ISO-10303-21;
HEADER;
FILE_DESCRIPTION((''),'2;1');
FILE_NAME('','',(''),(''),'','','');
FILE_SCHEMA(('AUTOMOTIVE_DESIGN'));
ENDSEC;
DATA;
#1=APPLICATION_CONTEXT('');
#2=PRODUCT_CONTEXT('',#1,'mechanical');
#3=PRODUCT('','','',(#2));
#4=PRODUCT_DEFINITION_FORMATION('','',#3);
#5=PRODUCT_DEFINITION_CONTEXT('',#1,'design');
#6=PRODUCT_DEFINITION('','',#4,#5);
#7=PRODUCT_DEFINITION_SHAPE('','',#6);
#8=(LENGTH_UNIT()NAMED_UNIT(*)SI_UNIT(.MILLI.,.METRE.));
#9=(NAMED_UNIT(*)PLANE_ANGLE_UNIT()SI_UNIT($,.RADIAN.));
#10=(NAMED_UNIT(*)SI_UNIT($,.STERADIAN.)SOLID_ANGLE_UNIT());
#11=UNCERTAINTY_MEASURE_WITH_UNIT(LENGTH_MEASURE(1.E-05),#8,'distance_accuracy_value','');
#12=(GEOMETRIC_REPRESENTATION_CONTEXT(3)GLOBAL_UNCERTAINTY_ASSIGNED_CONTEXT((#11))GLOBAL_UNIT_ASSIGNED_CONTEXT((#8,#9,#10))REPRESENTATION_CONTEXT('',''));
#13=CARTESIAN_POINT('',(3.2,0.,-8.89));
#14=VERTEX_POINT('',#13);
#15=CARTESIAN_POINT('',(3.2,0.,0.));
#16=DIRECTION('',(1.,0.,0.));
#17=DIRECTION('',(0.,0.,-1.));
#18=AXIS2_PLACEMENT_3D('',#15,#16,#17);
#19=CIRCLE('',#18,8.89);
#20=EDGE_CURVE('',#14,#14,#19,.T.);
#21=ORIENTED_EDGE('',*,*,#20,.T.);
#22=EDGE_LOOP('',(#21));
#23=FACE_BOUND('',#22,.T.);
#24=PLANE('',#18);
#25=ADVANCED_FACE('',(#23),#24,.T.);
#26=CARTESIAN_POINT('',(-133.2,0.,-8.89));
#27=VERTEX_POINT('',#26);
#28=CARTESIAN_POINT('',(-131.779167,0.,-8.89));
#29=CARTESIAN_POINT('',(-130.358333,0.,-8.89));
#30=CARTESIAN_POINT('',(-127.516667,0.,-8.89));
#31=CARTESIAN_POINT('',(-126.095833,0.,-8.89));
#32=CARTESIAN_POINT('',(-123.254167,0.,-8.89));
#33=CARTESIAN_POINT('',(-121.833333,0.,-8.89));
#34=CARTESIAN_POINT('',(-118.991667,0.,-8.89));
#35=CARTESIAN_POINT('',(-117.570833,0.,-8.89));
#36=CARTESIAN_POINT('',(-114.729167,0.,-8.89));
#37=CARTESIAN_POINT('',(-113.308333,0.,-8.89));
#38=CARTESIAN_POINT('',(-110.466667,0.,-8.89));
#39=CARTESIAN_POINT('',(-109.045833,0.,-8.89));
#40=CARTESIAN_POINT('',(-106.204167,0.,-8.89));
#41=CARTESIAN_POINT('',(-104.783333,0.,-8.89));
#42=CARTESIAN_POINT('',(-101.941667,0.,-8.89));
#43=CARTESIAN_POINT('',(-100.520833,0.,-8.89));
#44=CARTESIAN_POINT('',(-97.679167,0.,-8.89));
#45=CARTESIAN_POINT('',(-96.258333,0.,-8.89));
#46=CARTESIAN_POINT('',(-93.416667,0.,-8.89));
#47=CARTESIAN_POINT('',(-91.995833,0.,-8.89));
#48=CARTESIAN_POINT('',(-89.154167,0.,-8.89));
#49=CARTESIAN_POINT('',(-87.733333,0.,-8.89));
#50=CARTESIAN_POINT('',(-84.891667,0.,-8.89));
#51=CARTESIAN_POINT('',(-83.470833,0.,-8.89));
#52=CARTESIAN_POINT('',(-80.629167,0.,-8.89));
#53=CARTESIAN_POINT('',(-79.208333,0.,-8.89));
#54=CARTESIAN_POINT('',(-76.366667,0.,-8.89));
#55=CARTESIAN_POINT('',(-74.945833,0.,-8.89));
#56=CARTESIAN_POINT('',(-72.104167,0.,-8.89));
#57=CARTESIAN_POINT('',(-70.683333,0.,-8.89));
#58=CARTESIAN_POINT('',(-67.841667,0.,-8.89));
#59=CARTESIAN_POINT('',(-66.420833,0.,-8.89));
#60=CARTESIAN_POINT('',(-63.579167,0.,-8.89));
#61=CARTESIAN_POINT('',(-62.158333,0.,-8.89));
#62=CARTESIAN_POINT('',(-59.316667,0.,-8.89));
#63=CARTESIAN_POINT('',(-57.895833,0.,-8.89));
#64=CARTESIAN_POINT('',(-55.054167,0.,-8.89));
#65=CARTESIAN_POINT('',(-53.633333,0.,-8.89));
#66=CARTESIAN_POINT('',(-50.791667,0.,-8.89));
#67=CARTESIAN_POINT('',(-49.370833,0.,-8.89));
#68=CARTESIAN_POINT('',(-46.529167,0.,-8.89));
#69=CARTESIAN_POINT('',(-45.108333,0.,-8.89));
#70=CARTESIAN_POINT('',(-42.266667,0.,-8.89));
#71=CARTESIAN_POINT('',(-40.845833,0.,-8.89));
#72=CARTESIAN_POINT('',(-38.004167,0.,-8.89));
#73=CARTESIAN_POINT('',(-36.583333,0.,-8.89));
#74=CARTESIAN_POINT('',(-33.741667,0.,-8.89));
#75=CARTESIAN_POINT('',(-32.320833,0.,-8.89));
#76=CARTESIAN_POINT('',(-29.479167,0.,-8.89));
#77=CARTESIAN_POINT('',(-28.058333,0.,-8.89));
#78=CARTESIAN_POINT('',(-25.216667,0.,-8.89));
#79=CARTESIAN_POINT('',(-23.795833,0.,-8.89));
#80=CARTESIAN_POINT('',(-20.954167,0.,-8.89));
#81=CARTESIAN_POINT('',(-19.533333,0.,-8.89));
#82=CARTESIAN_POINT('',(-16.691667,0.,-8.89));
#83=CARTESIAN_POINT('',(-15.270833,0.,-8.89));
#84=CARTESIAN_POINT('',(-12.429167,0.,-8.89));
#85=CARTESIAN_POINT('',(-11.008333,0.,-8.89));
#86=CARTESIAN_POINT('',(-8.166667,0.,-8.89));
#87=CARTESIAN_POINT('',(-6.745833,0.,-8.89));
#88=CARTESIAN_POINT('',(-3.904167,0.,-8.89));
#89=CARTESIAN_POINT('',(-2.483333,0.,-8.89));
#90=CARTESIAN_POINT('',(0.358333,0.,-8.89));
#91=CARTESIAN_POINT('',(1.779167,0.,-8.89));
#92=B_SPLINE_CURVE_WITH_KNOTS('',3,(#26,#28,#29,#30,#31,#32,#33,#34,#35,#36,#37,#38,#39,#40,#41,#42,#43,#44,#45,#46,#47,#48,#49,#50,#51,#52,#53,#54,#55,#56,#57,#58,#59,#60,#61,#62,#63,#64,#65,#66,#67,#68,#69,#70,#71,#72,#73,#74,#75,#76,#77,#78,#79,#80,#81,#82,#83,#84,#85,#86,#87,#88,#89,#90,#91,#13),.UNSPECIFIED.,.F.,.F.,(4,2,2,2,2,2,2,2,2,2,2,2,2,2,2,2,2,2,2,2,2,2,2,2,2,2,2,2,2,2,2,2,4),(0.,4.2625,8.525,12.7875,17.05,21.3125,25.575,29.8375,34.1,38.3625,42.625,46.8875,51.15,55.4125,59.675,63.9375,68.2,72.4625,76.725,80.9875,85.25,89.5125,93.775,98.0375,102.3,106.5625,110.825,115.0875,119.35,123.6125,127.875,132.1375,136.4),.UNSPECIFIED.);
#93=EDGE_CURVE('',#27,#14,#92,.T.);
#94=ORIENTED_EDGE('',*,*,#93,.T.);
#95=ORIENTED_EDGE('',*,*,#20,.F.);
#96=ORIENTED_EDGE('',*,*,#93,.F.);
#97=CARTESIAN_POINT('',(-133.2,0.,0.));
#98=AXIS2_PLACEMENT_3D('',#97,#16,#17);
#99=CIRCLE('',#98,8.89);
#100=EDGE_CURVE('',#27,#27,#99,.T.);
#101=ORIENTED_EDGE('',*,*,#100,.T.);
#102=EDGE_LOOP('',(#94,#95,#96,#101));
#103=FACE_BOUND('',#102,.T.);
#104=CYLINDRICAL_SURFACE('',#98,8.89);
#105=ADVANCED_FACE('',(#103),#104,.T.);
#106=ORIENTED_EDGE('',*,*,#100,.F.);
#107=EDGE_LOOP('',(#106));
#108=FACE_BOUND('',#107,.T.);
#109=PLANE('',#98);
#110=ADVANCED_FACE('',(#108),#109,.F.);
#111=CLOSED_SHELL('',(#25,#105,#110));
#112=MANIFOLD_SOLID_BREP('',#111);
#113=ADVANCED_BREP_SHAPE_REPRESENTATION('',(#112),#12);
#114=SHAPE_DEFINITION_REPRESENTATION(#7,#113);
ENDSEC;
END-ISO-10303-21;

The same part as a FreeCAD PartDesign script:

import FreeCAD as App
import Part
import Sketcher
Q = App.Units.Quantity

doc = App.newDocument("Part")
params = doc.addObject("Spreadsheet::Sheet", "Params")
for row, (alias, value) in enumerate([
    ("sketch1_diameter", "17.78 mm"),
    ("pad1_length", "3.2 mm"),
    ("pad1_length2", "133.2 mm"),
], start=1):
    params.set(f"A{row}", alias)
    params.set(f"B{row}", "=" + value)
    params.setAlias(f"B{row}", alias)

body = doc.addObject("PartDesign::Body", "Body")

# Sketch on YZ plane
sketch1 = body.newObject("Sketcher::SketchObject", "Sketch")
sketch1.AttachmentSupport = (doc.getObject("YZ_Plane"), [""])
sketch1.MapMode = "FlatFace"
sketch1.addGeometry(Part.Circle(App.Vector(0, 0, 0), App.Vector(0, 0, 1), 9), False)
sketch1.addConstraint(Sketcher.Constraint("Coincident", 0, 3, -1, 1))
sketch1.addConstraint(Sketcher.Constraint("Diameter", 0, Q("17.78 mm")))
sketch1.setExpression("Constraints[1]", "Params.sketch1_diameter")
pad1 = body.newObject("PartDesign::Pad", "Pad")
pad1.Profile = sketch1
pad1.Type = "TwoLengths"
pad1.setExpression("Length", "Params.pad1_length")
pad1.setExpression("Length2", "Params.pad1_length2")

doc.recompute()
